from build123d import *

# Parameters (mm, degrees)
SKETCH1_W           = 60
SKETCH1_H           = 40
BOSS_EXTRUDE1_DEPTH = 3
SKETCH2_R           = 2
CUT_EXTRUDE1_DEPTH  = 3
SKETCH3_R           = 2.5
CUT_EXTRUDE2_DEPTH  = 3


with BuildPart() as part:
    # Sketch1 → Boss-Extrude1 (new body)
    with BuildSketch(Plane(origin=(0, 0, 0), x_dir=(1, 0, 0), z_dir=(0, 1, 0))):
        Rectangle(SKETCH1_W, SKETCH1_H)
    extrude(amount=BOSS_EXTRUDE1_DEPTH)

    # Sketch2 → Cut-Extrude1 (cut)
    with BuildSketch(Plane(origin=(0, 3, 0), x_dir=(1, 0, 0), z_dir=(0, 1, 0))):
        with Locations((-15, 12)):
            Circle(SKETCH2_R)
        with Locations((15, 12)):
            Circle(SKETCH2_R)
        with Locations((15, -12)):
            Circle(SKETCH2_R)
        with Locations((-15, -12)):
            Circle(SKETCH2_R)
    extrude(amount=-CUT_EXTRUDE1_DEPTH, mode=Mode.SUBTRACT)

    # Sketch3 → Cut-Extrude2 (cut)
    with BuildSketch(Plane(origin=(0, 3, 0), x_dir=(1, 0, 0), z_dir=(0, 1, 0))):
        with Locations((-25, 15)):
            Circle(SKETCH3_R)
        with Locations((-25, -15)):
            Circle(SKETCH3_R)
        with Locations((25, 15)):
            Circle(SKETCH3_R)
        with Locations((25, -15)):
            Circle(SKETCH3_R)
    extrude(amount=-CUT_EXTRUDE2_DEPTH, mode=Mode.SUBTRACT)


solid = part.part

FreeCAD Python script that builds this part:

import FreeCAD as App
import Part
import Sketcher
from FreeCAD import Vector

doc = App.newDocument("Part")
body = doc.addObject("PartDesign::Body", "Body")

sketch1 = body.newObject("Sketcher::SketchObject", "Sketch")
sketch1.AttachmentSupport = (doc.getObject("XZ_Plane"), [""])
sketch1.MapMode = "FlatFace"
sketch1.addGeometry([
    Part.LineSegment(Vector(-30, -20, 0), Vector(-30, 20, 0)),
    Part.LineSegment(Vector(-30, 20, 0), Vector(30, 20, 0)),
    Part.LineSegment(Vector(30, 20, 0), Vector(30, -20, 0)),
    Part.LineSegment(Vector(30, -20, 0), Vector(-30, -20, 0)),
], False)
sketch1.addConstraint([
    Sketcher.Constraint("Coincident", 0, 2, 1, 1),
    Sketcher.Constraint("Coincident", 1, 2, 2, 1),
    Sketcher.Constraint("Coincident", 2, 2, 3, 1),
    Sketcher.Constraint("Coincident", 3, 2, 0, 1),
    Sketcher.Constraint("Vertical", 0),
    Sketcher.Constraint("Horizontal", 1),
    Sketcher.Constraint("Vertical", 2),
    Sketcher.Constraint("Horizontal", 3),
    Sketcher.Constraint("Symmetric", 0, 2, 2, 2, -1, 1),
    Sketcher.Constraint("DistanceX", 1, 1, 1, 2, 60.0),
    Sketcher.Constraint("DistanceY", 0, 1, 0, 2, 40.0),
])
pad1 = body.newObject("PartDesign::Pad", "Pad")
pad1.Profile = sketch1
pad1.Length = 3
pad1.Reversed = True

sketch2 = body.newObject("Sketcher::SketchObject", "Sketch001")
sketch2.AttachmentSupport = (doc.getObject("XZ_Plane"), [""])
sketch2.MapMode = "FlatFace"
sketch2.AttachmentOffset = App.Placement(Vector(0, 0, -3), App.Rotation())
sketch2.addGeometry([
    Part.Circle(Vector(-15, -12, 0), Vector(0, 0, 1), 2),
    Part.Circle(Vector(15, -12, 0), Vector(0, 0, 1), 2),
    Part.Circle(Vector(15, 12, 0), Vector(0, 0, 1), 2),
    Part.Circle(Vector(-15, 12, 0), Vector(0, 0, 1), 2),
], False)
sketch2.addConstraint([
    Sketcher.Constraint("Equal", 0, 1),
    Sketcher.Constraint("Equal", 1, 2),
    Sketcher.Constraint("Equal", 2, 3),
    Sketcher.Constraint("Symmetric", 0, 3, 2, 3, -1, 1),
    Sketcher.Constraint("Symmetric", 1, 3, 3, 3, -1, 1),
    Sketcher.Constraint("Symmetric", 0, 3, 1, 3, -2),
    Sketcher.Constraint("Diameter", 0, 4.0),
    Sketcher.Constraint("DistanceX", 0, 3, -1, 1, 15.0),
    Sketcher.Constraint("DistanceY", 0, 3, -1, 1, 12.0),
])
pocket1 = body.newObject("PartDesign::Pocket", "Pocket")
pocket1.Profile = sketch2
pocket1.Length = 3
pocket1.Reversed = True

sketch3 = body.newObject("Sketcher::SketchObject", "Sketch002")
sketch3.AttachmentSupport = (doc.getObject("XZ_Plane"), [""])
sketch3.MapMode = "FlatFace"
sketch3.AttachmentOffset = App.Placement(Vector(0, 0, -3), App.Rotation())
sketch3.addGeometry([
    Part.Circle(Vector(-25, -15, 0), Vector(0, 0, 1), 2.5),
    Part.Circle(Vector(-25, 15, 0), Vector(0, 0, 1), 2.5),
    Part.Circle(Vector(25, -15, 0), Vector(0, 0, 1), 2.5),
    Part.Circle(Vector(25, 15, 0), Vector(0, 0, 1), 2.5),
], False)
sketch3.addConstraint([
    Sketcher.Constraint("Equal", 0, 1),
    Sketcher.Constraint("Equal", 1, 2),
    Sketcher.Constraint("Equal", 2, 3),
    Sketcher.Constraint("Symmetric", 1, 3, 2, 3, -1, 1),
    Sketcher.Constraint("Symmetric", 0, 3, 3, 3, -1, 1),
    Sketcher.Constraint("Symmetric", 0, 3, 2, 3, -2),
    Sketcher.Constraint("Diameter", 0, 5.0),
    Sketcher.Constraint("DistanceX", 0, 3, -1, 1, 25.0),
    Sketcher.Constraint("DistanceY", 0, 3, -1, 1, 15.0),
])
pocket2 = body.newObject("PartDesign::Pocket", "Pocket001")
pocket2.Profile = sketch3
pocket2.Length = 3
pocket2.Reversed = True

doc.recompute()
